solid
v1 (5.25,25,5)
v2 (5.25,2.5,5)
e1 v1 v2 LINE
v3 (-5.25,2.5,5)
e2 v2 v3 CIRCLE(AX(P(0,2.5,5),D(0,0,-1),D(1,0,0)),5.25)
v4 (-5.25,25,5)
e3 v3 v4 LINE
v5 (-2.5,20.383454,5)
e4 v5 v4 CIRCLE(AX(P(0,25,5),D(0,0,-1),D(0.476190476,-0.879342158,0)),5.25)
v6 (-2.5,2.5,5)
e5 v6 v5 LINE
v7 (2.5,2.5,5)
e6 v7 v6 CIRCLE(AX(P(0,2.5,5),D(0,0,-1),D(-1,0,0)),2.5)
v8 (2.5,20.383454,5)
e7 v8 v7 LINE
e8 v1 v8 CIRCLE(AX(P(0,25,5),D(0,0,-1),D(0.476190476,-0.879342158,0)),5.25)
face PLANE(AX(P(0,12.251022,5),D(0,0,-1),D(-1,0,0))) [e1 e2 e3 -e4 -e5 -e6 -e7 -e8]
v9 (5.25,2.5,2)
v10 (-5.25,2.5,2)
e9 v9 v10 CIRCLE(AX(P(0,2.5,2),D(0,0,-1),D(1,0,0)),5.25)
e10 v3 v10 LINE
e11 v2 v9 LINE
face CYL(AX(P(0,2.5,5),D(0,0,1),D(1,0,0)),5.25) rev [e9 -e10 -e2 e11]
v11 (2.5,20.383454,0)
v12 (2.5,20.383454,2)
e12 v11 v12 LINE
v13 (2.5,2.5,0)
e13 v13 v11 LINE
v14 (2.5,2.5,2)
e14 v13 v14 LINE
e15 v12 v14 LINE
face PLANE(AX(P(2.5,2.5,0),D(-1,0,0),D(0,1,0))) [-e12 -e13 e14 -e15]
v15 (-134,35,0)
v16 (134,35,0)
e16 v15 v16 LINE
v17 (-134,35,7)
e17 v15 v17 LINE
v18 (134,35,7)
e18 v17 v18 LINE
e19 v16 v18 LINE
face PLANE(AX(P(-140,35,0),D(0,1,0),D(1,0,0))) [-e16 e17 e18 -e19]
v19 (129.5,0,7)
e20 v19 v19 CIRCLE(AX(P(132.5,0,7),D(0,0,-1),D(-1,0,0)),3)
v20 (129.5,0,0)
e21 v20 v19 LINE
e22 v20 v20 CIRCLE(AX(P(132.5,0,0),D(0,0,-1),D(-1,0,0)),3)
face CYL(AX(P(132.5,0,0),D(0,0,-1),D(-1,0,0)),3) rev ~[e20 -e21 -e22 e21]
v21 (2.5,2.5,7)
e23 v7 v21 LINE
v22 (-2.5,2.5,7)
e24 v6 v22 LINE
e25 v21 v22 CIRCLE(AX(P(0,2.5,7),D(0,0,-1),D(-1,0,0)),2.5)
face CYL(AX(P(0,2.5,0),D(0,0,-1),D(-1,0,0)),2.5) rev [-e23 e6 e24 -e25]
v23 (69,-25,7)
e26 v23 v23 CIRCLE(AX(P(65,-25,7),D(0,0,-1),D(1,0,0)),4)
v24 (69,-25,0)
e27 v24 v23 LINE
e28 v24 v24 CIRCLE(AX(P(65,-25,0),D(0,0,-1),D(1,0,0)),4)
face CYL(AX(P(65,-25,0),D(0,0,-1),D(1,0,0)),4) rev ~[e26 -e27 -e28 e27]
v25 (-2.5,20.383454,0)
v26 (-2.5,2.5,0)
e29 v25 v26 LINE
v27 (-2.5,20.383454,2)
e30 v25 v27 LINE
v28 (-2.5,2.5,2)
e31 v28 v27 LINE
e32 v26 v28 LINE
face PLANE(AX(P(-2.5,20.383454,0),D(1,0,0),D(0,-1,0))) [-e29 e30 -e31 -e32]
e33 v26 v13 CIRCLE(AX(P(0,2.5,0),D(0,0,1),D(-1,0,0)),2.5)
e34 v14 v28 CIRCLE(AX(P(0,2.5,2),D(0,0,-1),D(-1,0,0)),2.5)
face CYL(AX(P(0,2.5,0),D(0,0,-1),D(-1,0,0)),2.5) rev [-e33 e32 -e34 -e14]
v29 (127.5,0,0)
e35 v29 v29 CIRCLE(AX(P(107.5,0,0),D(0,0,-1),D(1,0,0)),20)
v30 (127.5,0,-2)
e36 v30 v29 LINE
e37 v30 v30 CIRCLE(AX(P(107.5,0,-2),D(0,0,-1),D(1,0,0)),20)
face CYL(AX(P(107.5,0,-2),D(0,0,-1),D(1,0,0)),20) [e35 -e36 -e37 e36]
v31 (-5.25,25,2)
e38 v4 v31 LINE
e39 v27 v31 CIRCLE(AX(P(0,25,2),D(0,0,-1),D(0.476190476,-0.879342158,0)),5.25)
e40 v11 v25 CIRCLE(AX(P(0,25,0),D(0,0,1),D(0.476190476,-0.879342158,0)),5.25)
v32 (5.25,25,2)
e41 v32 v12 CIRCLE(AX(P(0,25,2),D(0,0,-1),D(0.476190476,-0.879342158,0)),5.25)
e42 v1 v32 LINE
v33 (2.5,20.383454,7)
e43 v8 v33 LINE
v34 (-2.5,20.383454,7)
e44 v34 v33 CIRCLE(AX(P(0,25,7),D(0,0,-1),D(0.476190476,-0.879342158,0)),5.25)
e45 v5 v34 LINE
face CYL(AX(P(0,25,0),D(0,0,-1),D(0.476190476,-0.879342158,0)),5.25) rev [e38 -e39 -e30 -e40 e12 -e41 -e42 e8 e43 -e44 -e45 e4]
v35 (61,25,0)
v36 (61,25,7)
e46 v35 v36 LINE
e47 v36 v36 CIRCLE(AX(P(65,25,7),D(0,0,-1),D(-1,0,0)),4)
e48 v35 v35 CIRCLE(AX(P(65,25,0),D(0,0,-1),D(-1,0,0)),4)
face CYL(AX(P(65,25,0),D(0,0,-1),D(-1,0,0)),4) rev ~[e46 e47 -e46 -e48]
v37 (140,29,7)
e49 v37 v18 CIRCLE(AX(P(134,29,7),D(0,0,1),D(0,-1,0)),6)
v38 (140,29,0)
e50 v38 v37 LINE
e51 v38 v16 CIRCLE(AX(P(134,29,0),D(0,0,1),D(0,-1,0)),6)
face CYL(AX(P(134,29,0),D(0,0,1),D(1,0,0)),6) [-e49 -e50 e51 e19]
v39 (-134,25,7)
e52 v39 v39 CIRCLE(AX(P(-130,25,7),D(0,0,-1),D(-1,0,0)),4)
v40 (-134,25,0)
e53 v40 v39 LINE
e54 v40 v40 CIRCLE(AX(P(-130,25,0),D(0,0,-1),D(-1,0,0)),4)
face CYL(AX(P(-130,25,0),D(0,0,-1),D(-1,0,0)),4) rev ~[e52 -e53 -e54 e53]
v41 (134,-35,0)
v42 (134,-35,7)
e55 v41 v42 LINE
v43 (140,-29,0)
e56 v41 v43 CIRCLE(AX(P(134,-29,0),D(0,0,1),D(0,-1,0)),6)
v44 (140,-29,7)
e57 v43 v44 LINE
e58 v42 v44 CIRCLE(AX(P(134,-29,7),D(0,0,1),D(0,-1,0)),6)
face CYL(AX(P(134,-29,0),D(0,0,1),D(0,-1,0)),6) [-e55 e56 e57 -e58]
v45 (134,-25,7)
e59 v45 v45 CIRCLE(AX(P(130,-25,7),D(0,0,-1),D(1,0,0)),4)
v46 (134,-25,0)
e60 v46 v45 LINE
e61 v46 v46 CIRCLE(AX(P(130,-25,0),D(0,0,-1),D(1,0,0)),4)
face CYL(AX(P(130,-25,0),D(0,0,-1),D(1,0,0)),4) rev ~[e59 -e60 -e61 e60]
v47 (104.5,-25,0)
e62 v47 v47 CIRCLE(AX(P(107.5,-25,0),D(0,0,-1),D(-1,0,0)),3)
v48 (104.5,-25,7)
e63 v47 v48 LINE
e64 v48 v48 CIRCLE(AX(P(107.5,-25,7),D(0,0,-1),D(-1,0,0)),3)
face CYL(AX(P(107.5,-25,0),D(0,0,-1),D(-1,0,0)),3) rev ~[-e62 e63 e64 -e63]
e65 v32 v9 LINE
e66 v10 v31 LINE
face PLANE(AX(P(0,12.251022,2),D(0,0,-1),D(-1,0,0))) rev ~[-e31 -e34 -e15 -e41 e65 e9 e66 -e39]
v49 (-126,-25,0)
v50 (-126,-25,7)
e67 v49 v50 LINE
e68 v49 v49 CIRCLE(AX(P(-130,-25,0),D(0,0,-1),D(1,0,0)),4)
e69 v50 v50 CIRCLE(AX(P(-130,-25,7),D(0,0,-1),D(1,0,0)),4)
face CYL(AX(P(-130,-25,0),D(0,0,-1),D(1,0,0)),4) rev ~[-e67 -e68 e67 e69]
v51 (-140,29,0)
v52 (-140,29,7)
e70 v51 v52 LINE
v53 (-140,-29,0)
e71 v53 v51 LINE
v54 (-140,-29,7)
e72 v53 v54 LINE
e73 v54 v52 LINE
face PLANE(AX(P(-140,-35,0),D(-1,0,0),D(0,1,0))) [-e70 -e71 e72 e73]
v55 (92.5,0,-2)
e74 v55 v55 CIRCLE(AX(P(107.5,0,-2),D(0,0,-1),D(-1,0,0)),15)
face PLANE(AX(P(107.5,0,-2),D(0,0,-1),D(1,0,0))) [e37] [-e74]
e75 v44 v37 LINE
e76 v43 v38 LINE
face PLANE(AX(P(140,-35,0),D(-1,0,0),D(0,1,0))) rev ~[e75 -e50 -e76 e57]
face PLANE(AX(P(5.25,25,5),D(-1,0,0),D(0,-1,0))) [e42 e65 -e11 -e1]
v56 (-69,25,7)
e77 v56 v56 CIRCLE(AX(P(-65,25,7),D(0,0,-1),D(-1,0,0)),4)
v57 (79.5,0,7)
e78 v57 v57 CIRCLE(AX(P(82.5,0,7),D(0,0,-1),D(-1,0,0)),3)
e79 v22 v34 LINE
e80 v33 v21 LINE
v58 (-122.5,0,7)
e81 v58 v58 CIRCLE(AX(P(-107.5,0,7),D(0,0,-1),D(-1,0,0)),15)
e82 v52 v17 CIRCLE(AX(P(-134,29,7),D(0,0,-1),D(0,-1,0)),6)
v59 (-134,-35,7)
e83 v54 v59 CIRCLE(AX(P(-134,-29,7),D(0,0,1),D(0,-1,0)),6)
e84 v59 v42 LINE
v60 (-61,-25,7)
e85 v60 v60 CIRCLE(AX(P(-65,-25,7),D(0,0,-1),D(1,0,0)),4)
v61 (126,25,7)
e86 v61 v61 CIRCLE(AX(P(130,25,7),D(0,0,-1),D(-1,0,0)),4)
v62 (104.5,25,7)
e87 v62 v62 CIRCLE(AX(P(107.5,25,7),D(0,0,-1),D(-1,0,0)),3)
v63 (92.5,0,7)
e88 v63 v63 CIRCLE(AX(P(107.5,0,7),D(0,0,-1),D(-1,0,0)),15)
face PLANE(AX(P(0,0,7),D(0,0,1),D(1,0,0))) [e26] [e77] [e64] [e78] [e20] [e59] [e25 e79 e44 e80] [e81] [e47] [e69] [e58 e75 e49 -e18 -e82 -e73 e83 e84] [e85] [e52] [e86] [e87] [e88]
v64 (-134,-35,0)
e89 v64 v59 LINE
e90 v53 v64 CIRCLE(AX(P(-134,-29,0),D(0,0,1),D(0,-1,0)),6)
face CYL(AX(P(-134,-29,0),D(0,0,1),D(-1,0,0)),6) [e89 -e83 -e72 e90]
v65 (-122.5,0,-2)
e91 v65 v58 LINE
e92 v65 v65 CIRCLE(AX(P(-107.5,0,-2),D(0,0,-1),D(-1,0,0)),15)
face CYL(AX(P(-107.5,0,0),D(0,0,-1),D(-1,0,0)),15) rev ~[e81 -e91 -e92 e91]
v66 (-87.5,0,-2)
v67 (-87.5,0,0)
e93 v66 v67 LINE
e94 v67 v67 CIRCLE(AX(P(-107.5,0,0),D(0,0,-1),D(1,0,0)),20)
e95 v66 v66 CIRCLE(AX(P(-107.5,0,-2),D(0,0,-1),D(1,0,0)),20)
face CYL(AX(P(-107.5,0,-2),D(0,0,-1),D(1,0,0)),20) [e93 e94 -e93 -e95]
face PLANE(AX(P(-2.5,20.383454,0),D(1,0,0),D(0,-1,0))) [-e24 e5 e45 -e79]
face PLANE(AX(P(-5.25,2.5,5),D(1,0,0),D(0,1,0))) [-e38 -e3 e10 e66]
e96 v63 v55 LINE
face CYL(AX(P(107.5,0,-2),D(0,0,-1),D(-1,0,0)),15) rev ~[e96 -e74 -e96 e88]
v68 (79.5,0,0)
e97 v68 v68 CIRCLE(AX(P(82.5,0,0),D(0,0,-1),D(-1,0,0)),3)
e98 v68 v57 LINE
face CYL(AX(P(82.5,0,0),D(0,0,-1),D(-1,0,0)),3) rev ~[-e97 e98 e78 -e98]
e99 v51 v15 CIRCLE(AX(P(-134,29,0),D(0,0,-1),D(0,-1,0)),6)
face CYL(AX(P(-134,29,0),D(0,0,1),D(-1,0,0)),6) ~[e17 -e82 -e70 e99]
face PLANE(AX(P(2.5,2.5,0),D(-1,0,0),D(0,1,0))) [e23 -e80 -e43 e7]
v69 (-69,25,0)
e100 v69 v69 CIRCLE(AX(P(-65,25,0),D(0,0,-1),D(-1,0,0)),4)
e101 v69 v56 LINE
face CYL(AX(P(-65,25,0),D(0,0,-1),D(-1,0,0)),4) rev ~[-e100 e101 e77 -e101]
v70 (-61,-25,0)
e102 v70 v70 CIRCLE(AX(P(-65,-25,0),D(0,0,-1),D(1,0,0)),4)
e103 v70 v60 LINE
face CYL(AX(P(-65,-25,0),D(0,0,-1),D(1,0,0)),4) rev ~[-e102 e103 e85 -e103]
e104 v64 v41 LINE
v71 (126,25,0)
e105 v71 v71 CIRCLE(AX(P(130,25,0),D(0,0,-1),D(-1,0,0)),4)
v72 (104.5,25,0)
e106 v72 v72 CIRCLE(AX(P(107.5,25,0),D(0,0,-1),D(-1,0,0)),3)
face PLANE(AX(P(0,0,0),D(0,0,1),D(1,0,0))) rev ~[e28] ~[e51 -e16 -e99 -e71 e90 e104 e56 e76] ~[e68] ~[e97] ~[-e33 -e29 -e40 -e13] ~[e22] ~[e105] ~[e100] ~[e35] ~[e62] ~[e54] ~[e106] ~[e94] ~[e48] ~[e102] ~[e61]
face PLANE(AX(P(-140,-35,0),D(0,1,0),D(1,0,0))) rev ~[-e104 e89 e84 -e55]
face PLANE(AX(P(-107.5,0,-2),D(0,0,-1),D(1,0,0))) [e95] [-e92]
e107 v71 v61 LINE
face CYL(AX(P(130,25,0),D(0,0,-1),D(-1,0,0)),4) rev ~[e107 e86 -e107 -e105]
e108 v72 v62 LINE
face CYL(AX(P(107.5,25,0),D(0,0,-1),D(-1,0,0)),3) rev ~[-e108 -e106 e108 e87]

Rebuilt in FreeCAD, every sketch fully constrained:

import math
import FreeCAD as App
import Part
import Sketcher
Q = App.Units.Quantity


def edges_at(feature, points):
    """Names of the edges that pass closest to the given points."""
    edges = feature.Shape.Edges
    near = lambda p: min(range(len(edges)), key=lambda i: edges[i].distToShape(Part.Vertex(*p))[0])
    return sorted({f"Edge{near(p) + 1}" for p in points})


def add_polygon(sketch, points):
    """Adds a closed chain of lines whose ends are joined by coincident constraints."""
    first, n = sketch.GeometryCount, len(points)
    for a, b in zip(points, points[1:] + points[:1]):
        sketch.addGeometry(Part.LineSegment(App.Vector(*a, 0), App.Vector(*b, 0)), False)
    for i in range(n):
        sketch.addConstraint(Sketcher.Constraint("Coincident", first + i, 2, first + (i + 1) % n, 1))

doc = App.newDocument("Part")
params = doc.addObject("Spreadsheet::Sheet", "Params")
for row, (alias, value) in enumerate([
    ("sketch1_width", "280 mm"),
    ("sketch1_height", "70 mm"),
    ("pad1_length", "7 mm"),
    ("fillet_radius", "6 mm"),
    ("sketch2_diameter", "30 mm"),
    ("sketch2_diameter2", "8 mm"),
    ("sketch2_diameter3", "6 mm"),
    ("sketch2_radius", "2.5 mm"),
    ("sketch2_radius2", "5.25 mm"),
    ("pocket1_length", "10 mm"),
    ("sketch3_diameter", "40 mm"),
    ("sketch3_diameter2", "30 mm"),
    ("pad2_length", "2 mm"),
    ("sketch4_radius", "5.25 mm"),
    ("sketch4_height", "22.5 mm"),
    ("pocket2_length", "3 mm"),
], start=1):
    params.set(f"A{row}", alias)
    params.set(f"B{row}", "=" + value)
    params.setAlias(f"B{row}", alias)

body = doc.addObject("PartDesign::Body", "Body")

# Sketch on XY plane
sketch1 = body.newObject("Sketcher::SketchObject", "Sketch")
sketch1.AttachmentSupport = (doc.getObject("XY_Plane"), [""])
sketch1.MapMode = "FlatFace"
add_polygon(sketch1, [(-140, 35), (-140, -35), (140, -35), (140, 35)])  # lines 0-3
sketch1.addConstraint([
    Sketcher.Constraint("Vertical", 0),
    Sketcher.Constraint("Horizontal", 1),
    Sketcher.Constraint("Vertical", 2),
    Sketcher.Constraint("Horizontal", 3),
    Sketcher.Constraint("Symmetric", 0, 2, 2, 2, -1, 1),
    Sketcher.Constraint("DistanceX", 1, 1, 1, 2, Q("280 mm")),
    Sketcher.Constraint("DistanceY", 0, 2, 0, 1, Q("70 mm")),
])
sketch1.setExpression("Constraints[9]", "Params.sketch1_width")
sketch1.setExpression("Constraints[10]", "Params.sketch1_height")
pad1 = body.newObject("PartDesign::Pad", "Pad")
pad1.Profile = sketch1
pad1.setExpression("Length", "Params.pad1_length")
doc.recompute()

fillet = body.newObject("PartDesign::Fillet", "Fillet")
fillet.Base = (pad1, edges_at(pad1, [
    (140, -35, 3.5),
    (-140, -35, 3.5),
    (-140, 35, 3.5),
    (140, 35, 3.5),
]))
fillet.setExpression("Radius", "Params.fillet_radius")

# Sketch on XY plane
sketch2 = body.newObject("Sketcher::SketchObject", "Sketch001")
sketch2.AttachmentSupport = (doc.getObject("XY_Plane"), [""])
sketch2.MapMode = "FlatFace"
sketch2.addGeometry([
    Part.Circle(App.Vector(107.5, 0, 0), App.Vector(0, 0, 1), 15),  # 0
    Part.Circle(App.Vector(-107.5, 0, 0), App.Vector(0, 0, 1), 15),  # 1
    Part.Circle(App.Vector(-130, 25, 0), App.Vector(0, 0, 1), 4),  # 2
    Part.Circle(App.Vector(-65, 25, 0), App.Vector(0, 0, 1), 4),  # 3
    Part.Circle(App.Vector(65, 25, 0), App.Vector(0, 0, 1), 4),  # 4
    Part.Circle(App.Vector(130, 25, 0), App.Vector(0, 0, 1), 4),  # 5
    Part.Circle(App.Vector(130, -25, 0), App.Vector(0, 0, 1), 4),  # 6
    Part.Circle(App.Vector(65, -25, 0), App.Vector(0, 0, 1), 4),  # 7
    Part.Circle(App.Vector(-65, -25, 0), App.Vector(0, 0, 1), 4),  # 8
    Part.Circle(App.Vector(-130, -25, 0), App.Vector(0, 0, 1), 4),  # 9
    Part.Circle(App.Vector(132.5, 0, 0), App.Vector(0, 0, 1), 3),  # 10
    Part.Circle(App.Vector(107.5, 25, 0), App.Vector(0, 0, 1), 3),  # 11
    Part.Circle(App.Vector(107.5, -25, 0), App.Vector(0, 0, 1), 3),  # 12
    Part.Circle(App.Vector(82.5, 0, 0), App.Vector(0, 0, 1), 3),  # 13
    Part.LineSegment(App.Vector(-2.5, 2.5, 0), App.Vector(-2.5, 20.4, 0)),  # 14
    Part.ArcOfCircle(Part.Circle(App.Vector(0, 25, 0), App.Vector(0, 0, 1), 5.2), math.radians(-62), math.radians(242)),  # 15
    Part.LineSegment(App.Vector(2.5, 20.4, 0), App.Vector(2.5, 2.5, 0)),  # 16
    Part.ArcOfCircle(Part.Circle(App.Vector(0, 2.5, 0), App.Vector(0, 0, 1), 2.5), math.radians(180), math.radians(360)),  # 17
], False)
sketch2.addConstraint([
    Sketcher.Constraint("Coincident", 14, 2, 15, 2),
    Sketcher.Constraint("Coincident", 15, 1, 16, 1),
    Sketcher.Constraint("Tangent", 16, 2, 17, 2),
    Sketcher.Constraint("Tangent", 17, 1, 14, 1),
    Sketcher.Constraint("Vertical", 14),
    Sketcher.Constraint("Vertical", 16),
    Sketcher.Constraint("Equal", 0, 1),
    Sketcher.Constraint("Equal", 2, 3),
    Sketcher.Constraint("Equal", 3, 4),
    Sketcher.Constraint("Equal", 4, 5),
    Sketcher.Constraint("Equal", 5, 6),
    Sketcher.Constraint("Equal", 6, 7),
    Sketcher.Constraint("Equal", 7, 8),
    Sketcher.Constraint("Equal", 8, 9),
    Sketcher.Constraint("Equal", 10, 11),
    Sketcher.Constraint("Equal", 11, 12),
    Sketcher.Constraint("Equal", 12, 13),
    Sketcher.Constraint("Symmetric", 0, 3, 1, 3, -1, 1),
    Sketcher.Constraint("Symmetric", 2, 3, 6, 3, -1, 1),
    Sketcher.Constraint("Symmetric", 3, 3, 7, 3, -1, 1),
    Sketcher.Constraint("Symmetric", 4, 3, 8, 3, -1, 1),
    Sketcher.Constraint("Symmetric", 5, 3, 9, 3, -1, 1),
    Sketcher.Constraint("Symmetric", 3, 3, 4, 3, -2),
    Sketcher.Constraint("Symmetric", 2, 3, 5, 3, -2),
    Sketcher.Constraint("Symmetric", 14, 2, 15, 1, -2),
    Sketcher.Constraint("Symmetric", 11, 3, 12, 3, -1),
    Sketcher.Constraint("PointOnObject", 0, 3, -1),
    Sketcher.Constraint("PointOnObject", 10, 3, -1),
    Sketcher.Constraint("PointOnObject", 13, 3, -1),
    Sketcher.Constraint("Horizontal", 2, 3, 3, 3),
    Sketcher.Constraint("Horizontal", 5, 3, 11, 3),
    Sketcher.Constraint("Horizontal", 11, 3, 15, 3),
    Sketcher.Constraint("Vertical", 0, 3, 11, 3),
    Sketcher.Constraint("Diameter", 0, Q("30 mm")),
    Sketcher.Constraint("Diameter", 2, Q("8 mm")),
    Sketcher.Constraint("Diameter", 10, Q("6 mm")),
    Sketcher.Constraint("Radius", 17, Q("2.5 mm")),
    Sketcher.Constraint("Radius", 15, Q("5.25 mm")),
    Sketcher.Constraint("DistanceX", 2, 3, -1, 1, Q("130 mm")),
    Sketcher.Constraint("DistanceY", -1, 1, 2, 3, Q("25 mm")),
    Sketcher.Constraint("DistanceX", 3, 3, -1, 1, Q("65 mm")),
    Sketcher.Constraint("DistanceX", 1, 3, 0, 3, Q("215 mm")),
    Sketcher.Constraint("DistanceX", 0, 3, 10, 3, Q("25 mm")),
    Sketcher.Constraint("DistanceX", 13, 3, 0, 3, Q("25 mm")),
    Sketcher.Constraint("DistanceY", -1, 1, 17, 3, Q("2.5 mm")),
])
sketch2.setExpression("Constraints[33]", "Params.sketch2_diameter")
sketch2.setExpression("Constraints[34]", "Params.sketch2_diameter2")
sketch2.setExpression("Constraints[35]", "Params.sketch2_diameter3")
sketch2.setExpression("Constraints[36]", "Params.sketch2_radius")
sketch2.setExpression("Constraints[37]", "Params.sketch2_radius2")
pocket1 = body.newObject("PartDesign::Pocket", "Pocket")
pocket1.Profile = sketch2
pocket1.setExpression("Length", "Params.pocket1_length")
pocket1.Reversed = True

# Sketch on XY plane
sketch3 = body.newObject("Sketcher::SketchObject", "Sketch002")
sketch3.AttachmentSupport = (doc.getObject("XY_Plane"), [""])
sketch3.MapMode = "FlatFace"
sketch3.AttachmentOffset = App.Placement(App.Vector(0, 0, -2), App.Rotation())
sketch3.addGeometry([
    Part.Circle(App.Vector(108, 0, 0), App.Vector(0, 0, 1), 20),
    Part.Circle(App.Vector(108, 0, 0), App.Vector(0, 0, 1), 15),
    Part.Circle(App.Vector(-108, 0, 0), App.Vector(0, 0, 1), 20),
    Part.Circle(App.Vector(-108, 0, 0), App.Vector(0, 0, 1), 15),
], False)
sketch3.addConstraint([
    Sketcher.Constraint("Coincident", 1, 3, 0, 3),
    Sketcher.Constraint("Coincident", 3, 3, 2, 3),
    Sketcher.Constraint("Equal", 0, 2),
    Sketcher.Constraint("Equal", 1, 3),
    Sketcher.Constraint("Symmetric", 0, 3, 2, 3, -1, 1),
    Sketcher.Constraint("PointOnObject", 0, 3, -1),
    Sketcher.Constraint("Diameter", 0, Q("40 mm")),
    Sketcher.Constraint("Diameter", 1, Q("30 mm")),
    Sketcher.Constraint("DistanceX", 2, 3, 0, 3, Q("215 mm")),
])
sketch3.setExpression("Constraints[6]", "Params.sketch3_diameter")
sketch3.setExpression("Constraints[7]", "Params.sketch3_diameter2")
pad2 = body.newObject("PartDesign::Pad", "Pad001")
pad2.Profile = sketch3
pad2.setExpression("Length", "Params.pad2_length")

# Sketch on XY plane
sketch4 = body.newObject("Sketcher::SketchObject", "Sketch003")
sketch4.AttachmentSupport = (doc.getObject("XY_Plane"), [""])
sketch4.MapMode = "FlatFace"
sketch4.AttachmentOffset = App.Placement(App.Vector(0, 0, 5), App.Rotation())
sketch4.addGeometry([
    Part.LineSegment(App.Vector(5, 25, 0), App.Vector(-5, 25, 0)),
    Part.LineSegment(App.Vector(-5, 25, 0), App.Vector(-5, 2, 0)),
    Part.ArcOfCircle(Part.Circle(App.Vector(0, 2, 0), App.Vector(0, 0, 1), 5), math.radians(180), math.radians(360)),
    Part.LineSegment(App.Vector(5, 2, 0), App.Vector(5, 25, 0)),
], False)
sketch4.addConstraint([
    Sketcher.Constraint("Coincident", 0, 2, 1, 1),
    Sketcher.Constraint("Tangent", 1, 2, 2, 1),
    Sketcher.Constraint("Tangent", 2, 2, 3, 1),
    Sketcher.Constraint("Coincident", 3, 2, 0, 1),
    Sketcher.Constraint("Horizontal", 0),
    Sketcher.Constraint("Vertical", 1),
    Sketcher.Constraint("Vertical", 3),
    Sketcher.Constraint("PointOnObject", 2, 3, -2),
    Sketcher.Constraint("Radius", 2, Q("5.25 mm")),
    Sketcher.Constraint("DistanceY", 1, 2, 1, 1, Q("22.5 mm")),
    Sketcher.Constraint("DistanceY", -1, 1, 0, 2, Q("25 mm")),
])
sketch4.setExpression("Constraints[8]", "Params.sketch4_radius")
sketch4.setExpression("Constraints[9]", "Params.sketch4_height")
pocket2 = body.newObject("PartDesign::Pocket", "Pocket001")
pocket2.Profile = sketch4
pocket2.setExpression("Length", "Params.pocket2_length")

doc.recompute()
